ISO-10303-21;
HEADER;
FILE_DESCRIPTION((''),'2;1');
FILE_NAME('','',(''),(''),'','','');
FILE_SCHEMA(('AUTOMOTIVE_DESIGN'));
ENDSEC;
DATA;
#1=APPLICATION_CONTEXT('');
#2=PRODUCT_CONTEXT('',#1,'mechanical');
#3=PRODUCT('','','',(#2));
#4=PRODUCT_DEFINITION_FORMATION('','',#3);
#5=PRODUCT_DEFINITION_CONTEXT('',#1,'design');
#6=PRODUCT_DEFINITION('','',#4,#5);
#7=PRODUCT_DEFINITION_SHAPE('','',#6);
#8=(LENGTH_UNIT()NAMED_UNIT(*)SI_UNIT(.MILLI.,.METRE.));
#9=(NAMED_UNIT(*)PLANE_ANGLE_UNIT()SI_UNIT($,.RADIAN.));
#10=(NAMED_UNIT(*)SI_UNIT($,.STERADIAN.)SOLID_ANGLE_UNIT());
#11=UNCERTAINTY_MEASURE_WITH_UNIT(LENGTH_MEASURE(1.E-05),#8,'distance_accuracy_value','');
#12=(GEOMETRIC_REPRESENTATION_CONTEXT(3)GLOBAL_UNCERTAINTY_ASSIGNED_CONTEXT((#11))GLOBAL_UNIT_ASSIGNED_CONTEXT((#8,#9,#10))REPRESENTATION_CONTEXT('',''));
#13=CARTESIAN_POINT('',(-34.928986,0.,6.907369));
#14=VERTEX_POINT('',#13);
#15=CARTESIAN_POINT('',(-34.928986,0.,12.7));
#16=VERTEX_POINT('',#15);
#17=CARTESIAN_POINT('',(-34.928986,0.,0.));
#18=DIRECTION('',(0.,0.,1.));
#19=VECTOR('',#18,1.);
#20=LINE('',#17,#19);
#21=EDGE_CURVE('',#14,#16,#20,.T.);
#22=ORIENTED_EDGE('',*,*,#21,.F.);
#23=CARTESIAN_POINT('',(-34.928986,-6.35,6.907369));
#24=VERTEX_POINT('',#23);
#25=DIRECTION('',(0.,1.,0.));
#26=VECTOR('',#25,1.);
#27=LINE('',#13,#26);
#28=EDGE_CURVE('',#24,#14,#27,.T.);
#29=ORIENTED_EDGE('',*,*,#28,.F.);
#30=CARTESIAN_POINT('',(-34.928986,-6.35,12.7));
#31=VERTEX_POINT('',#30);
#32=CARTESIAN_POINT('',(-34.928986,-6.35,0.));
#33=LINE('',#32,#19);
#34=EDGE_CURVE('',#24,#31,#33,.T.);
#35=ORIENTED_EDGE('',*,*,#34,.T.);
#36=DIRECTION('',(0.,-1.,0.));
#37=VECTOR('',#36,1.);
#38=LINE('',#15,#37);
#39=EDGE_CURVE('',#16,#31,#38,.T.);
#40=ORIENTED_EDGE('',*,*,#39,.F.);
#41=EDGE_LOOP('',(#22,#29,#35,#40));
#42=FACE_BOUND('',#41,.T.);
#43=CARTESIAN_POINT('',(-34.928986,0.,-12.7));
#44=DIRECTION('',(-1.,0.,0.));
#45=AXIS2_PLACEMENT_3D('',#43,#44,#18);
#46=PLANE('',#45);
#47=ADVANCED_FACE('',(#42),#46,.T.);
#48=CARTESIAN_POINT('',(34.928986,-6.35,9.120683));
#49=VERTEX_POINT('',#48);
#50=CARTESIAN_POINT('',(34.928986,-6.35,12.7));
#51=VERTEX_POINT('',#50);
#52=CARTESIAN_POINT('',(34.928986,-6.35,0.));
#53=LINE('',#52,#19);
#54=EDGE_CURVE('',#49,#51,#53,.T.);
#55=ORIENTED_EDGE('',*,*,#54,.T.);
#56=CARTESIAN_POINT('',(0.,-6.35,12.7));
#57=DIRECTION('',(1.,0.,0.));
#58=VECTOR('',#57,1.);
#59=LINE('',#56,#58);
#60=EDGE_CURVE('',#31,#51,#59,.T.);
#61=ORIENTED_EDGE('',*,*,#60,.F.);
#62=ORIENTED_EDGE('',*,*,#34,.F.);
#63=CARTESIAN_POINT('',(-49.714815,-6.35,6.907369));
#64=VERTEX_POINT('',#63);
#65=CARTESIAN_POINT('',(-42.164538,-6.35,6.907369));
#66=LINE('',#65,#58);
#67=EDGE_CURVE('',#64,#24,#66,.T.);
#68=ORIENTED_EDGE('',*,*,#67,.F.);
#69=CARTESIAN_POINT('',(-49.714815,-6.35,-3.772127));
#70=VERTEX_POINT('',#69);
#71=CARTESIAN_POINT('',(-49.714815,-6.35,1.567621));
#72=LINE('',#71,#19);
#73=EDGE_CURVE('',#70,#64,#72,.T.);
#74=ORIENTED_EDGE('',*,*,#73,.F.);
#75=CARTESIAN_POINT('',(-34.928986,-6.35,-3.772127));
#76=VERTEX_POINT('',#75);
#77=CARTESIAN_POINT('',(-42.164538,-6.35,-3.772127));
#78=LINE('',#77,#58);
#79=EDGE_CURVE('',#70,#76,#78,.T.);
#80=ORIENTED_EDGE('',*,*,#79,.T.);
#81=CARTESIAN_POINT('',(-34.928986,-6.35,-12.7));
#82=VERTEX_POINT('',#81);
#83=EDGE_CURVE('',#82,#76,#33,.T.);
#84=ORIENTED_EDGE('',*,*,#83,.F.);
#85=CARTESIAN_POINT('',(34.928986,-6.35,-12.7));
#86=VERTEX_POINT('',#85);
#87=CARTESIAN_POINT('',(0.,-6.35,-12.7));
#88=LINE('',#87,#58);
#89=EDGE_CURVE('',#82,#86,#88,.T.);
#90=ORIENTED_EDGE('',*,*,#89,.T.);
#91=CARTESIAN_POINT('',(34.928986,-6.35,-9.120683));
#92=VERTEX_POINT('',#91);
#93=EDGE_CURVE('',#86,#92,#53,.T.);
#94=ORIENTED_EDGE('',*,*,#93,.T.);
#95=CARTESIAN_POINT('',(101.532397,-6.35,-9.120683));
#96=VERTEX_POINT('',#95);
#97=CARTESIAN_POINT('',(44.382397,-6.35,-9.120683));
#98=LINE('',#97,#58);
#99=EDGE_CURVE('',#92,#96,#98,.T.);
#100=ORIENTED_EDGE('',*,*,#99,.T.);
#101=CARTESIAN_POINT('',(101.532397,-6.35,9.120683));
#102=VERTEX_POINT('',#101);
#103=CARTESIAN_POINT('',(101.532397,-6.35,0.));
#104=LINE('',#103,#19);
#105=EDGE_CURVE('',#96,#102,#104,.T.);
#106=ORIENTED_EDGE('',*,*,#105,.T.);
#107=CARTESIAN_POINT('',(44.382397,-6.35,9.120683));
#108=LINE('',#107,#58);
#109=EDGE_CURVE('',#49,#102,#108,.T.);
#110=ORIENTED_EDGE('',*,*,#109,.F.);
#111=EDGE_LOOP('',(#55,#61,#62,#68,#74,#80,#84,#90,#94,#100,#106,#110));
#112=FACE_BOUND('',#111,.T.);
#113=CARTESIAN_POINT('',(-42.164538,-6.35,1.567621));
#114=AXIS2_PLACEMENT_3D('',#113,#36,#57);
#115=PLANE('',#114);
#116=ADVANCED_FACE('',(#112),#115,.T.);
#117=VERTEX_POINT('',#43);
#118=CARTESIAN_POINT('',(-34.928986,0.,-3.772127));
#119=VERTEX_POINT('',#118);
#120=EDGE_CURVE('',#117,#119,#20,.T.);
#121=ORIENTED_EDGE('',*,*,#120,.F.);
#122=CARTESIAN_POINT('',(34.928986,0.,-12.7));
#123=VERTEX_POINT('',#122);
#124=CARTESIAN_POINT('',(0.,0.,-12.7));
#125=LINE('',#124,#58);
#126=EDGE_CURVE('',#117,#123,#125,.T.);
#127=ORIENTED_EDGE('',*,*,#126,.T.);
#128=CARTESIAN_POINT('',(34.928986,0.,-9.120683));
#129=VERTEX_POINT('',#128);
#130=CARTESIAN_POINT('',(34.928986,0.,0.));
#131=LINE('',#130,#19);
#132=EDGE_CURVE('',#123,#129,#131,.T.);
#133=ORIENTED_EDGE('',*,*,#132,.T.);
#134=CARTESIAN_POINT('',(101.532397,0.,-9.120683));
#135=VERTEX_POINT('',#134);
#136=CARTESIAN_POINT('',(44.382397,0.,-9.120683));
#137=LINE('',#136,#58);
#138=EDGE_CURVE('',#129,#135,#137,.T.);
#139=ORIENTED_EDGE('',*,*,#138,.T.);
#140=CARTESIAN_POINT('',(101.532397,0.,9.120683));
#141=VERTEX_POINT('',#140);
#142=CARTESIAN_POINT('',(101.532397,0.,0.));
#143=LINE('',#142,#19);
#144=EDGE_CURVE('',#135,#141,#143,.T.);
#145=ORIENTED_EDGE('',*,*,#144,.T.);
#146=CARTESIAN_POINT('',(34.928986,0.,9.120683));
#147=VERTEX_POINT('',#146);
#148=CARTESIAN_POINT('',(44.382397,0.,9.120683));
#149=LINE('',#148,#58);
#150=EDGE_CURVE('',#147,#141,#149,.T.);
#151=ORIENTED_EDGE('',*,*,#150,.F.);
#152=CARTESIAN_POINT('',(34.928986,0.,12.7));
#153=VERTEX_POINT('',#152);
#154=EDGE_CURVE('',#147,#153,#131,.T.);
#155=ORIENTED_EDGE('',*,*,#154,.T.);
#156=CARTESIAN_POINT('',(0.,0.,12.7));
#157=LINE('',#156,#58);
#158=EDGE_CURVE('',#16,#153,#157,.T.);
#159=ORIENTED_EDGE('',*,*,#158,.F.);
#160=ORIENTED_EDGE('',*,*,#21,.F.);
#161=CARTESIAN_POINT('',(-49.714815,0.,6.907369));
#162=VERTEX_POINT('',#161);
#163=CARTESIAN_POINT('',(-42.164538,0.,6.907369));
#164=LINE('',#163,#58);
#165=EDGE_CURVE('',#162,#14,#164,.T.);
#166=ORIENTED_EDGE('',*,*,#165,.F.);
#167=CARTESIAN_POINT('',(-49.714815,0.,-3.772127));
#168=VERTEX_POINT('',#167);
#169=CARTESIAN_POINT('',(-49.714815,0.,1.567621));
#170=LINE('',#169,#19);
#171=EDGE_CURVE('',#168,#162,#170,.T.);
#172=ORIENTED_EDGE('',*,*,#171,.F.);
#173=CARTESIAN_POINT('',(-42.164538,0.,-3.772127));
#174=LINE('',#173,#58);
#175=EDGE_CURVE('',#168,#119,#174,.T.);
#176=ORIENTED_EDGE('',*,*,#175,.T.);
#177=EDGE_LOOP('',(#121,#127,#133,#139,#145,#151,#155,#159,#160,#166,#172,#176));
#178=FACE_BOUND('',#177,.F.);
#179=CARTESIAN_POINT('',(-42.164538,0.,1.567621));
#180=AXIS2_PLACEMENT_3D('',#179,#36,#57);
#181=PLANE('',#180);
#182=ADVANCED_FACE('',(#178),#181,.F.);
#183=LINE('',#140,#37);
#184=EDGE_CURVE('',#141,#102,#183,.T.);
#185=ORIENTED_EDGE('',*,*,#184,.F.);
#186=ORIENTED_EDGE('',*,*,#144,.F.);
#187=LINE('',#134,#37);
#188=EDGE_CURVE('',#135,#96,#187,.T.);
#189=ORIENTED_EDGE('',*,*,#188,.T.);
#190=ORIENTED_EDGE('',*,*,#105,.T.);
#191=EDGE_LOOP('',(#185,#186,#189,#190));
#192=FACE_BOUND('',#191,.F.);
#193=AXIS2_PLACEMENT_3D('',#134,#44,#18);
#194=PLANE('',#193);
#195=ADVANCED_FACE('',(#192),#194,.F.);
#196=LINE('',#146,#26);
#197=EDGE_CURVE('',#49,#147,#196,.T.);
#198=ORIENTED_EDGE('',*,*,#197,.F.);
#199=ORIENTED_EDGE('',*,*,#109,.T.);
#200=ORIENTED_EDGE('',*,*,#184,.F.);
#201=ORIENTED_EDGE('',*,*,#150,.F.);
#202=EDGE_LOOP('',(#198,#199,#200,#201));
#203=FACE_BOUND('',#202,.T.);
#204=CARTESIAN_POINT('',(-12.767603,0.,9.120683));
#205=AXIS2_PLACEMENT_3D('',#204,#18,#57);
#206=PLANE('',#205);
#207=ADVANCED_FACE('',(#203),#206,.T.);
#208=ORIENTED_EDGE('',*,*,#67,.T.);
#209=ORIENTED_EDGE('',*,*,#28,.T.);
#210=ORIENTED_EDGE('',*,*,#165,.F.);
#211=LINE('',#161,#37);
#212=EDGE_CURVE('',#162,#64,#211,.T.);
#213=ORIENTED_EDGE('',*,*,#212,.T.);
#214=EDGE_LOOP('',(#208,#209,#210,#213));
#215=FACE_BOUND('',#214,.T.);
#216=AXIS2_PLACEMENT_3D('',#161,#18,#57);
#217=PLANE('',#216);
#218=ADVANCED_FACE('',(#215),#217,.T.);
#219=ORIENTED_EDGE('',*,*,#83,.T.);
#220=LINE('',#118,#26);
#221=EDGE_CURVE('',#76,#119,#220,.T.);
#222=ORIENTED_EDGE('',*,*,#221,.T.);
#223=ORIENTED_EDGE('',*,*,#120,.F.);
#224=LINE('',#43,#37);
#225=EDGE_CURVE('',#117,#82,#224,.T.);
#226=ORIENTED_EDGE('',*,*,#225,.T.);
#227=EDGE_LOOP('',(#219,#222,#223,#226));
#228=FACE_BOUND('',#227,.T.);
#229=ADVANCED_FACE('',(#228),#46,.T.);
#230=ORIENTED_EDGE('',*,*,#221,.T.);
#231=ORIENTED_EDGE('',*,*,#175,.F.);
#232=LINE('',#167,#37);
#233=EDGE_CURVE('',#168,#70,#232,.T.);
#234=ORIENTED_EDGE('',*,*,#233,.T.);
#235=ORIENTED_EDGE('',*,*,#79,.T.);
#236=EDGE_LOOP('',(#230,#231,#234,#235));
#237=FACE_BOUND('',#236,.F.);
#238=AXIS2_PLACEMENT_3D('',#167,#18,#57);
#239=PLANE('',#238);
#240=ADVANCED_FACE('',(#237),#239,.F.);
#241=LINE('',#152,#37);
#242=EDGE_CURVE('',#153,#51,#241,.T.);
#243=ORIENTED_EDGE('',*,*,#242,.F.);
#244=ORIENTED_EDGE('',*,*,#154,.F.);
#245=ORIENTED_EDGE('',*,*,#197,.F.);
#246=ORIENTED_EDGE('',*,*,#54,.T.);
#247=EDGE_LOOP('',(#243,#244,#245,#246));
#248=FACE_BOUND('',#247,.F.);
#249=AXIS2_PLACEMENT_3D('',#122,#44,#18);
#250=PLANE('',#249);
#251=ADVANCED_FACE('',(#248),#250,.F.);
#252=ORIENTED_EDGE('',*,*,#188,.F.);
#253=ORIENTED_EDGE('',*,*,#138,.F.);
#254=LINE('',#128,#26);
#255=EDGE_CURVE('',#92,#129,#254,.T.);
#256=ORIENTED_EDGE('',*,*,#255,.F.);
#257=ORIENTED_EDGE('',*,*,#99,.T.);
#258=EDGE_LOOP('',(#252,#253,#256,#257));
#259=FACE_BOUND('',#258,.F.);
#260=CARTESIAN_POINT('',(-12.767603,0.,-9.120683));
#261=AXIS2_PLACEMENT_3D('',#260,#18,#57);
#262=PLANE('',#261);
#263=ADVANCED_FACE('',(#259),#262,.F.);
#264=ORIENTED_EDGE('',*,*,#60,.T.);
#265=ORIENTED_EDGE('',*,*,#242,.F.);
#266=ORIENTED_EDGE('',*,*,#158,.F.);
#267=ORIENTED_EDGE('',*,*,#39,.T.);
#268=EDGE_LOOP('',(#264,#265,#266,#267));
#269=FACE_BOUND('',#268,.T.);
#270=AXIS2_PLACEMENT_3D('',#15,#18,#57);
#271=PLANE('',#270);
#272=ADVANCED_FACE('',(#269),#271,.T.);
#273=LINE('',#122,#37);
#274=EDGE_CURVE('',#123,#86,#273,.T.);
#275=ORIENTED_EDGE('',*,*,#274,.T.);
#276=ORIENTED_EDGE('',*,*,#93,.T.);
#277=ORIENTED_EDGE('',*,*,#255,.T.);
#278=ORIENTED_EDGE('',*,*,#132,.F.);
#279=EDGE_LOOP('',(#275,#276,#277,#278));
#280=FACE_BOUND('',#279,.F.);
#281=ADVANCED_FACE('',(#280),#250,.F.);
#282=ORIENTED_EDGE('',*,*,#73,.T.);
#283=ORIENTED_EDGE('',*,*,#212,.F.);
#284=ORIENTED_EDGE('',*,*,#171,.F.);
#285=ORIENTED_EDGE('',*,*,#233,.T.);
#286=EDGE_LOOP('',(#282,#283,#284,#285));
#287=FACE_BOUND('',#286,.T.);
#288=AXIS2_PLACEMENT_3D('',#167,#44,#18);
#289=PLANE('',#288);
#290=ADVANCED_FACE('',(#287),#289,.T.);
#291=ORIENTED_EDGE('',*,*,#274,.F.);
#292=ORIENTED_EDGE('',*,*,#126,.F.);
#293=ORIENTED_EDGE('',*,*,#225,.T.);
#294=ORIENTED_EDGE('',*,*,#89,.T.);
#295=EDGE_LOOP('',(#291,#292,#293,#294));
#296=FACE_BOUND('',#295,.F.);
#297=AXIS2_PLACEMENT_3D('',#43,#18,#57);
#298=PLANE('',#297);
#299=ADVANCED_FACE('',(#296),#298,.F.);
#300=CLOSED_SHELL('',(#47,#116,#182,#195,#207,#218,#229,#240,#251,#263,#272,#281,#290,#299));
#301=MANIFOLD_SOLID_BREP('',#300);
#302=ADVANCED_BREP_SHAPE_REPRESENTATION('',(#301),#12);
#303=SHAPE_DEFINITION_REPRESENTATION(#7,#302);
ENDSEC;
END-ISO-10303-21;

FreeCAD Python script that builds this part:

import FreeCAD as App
import Part
import Sketcher
Q = App.Units.Quantity


def add_polygon(sketch, points):
    """Adds a closed chain of lines whose ends are joined by coincident constraints."""
    first, n = sketch.GeometryCount, len(points)
    for a, b in zip(points, points[1:] + points[:1]):
        sketch.addGeometry(Part.LineSegment(App.Vector(*a, 0), App.Vector(*b, 0)), False)
    for i in range(n):
        sketch.addConstraint(Sketcher.Constraint("Coincident", first + i, 2, first + (i + 1) % n, 1))

doc = App.newDocument("Part")
body = doc.addObject("PartDesign::Body", "Body")

# Sketch on XZ plane
sketch1 = doc.addObject("Sketcher::SketchObject", "Sketch")
body.addObject(sketch1)
sketch1.AttachmentSupport = (doc.XZ_Plane, [""])
sketch1.MapMode = "FlatFace"
add_polygon(sketch1, [(-34.928986, 12.7), (-34.928986, -12.7), (34.928986, -12.7), (34.928986, 12.7)])  # lines 0-3
sketch1.addConstraint([
    Sketcher.Constraint("Vertical", 0),
    Sketcher.Constraint("Horizontal", 1),
    Sketcher.Constraint("Vertical", 2),
    Sketcher.Constraint("Horizontal", 3),
    Sketcher.Constraint("Symmetric", 0, 2, 2, 2, -1, 1),
    Sketcher.Constraint("DistanceY", 0, 2, 0, 1, Q("1 in")),
    Sketcher.Constraint("DistanceX", 1, 1, 1, 2, Q("69.857972 mm")),
])
pad1 = doc.addObject("PartDesign::Pad", "Pad")
body.addObject(pad1)
pad1.Profile = sketch1
pad1.Length = Q("0.25 in")

# Sketch on XZ plane
sketch2 = doc.addObject("Sketcher::SketchObject", "Sketch001")
body.addObject(sketch2)
sketch2.AttachmentSupport = (doc.XZ_Plane, [""])
sketch2.MapMode = "FlatFace"
add_polygon(sketch2, [(-49.714815, 6.907369), (-49.714815, -3.772127), (-34.614261, -3.772127), (-34.614261, 6.907369)])  # lines 0-3
add_polygon(sketch2, [(-12.767603, 9.120683), (-12.767603, -9.120683), (101.532397, -9.120683), (101.532397, 9.120683)])  # lines 4-7
sketch2.addConstraint([
    Sketcher.Constraint("Vertical", 0),
    Sketcher.Constraint("Horizontal", 1),
    Sketcher.Constraint("Vertical", 2),
    Sketcher.Constraint("Horizontal", 3),
    Sketcher.Constraint("Vertical", 4),
    Sketcher.Constraint("Horizontal", 5),
    Sketcher.Constraint("Vertical", 6),
    Sketcher.Constraint("Horizontal", 7),
    Sketcher.Constraint("DistanceX", 5, 1, 5, 2, Q("4.5 in")),
    Sketcher.Constraint("DistanceX", 1, 1, 1, 2, Q("15.100554 mm")),
    Sketcher.Constraint("DistanceY", 0, 2, 0, 1, Q("10.679496 mm")),
    Sketcher.Constraint("DistanceY", 4, 2, 4, 1, Q("18.241366 mm")),
    Sketcher.Constraint("DistanceX", 1, 2, -1, 1, Q("34.614261 mm")),
    Sketcher.Constraint("DistanceY", -1, 1, 2, 2, Q("6.907369 mm")),
    Sketcher.Constraint("DistanceY", 4, 2, 2, 2, Q("16.028052 mm")),
    Sketcher.Constraint("DistanceX", 1, 2, 5, 2, Q("136.146658 mm")),
])
pad2 = doc.addObject("PartDesign::Pad", "Pad001")
body.addObject(pad2)
pad2.Profile = sketch2
pad2.Length = Q("0.25 in")

doc.recompute()
